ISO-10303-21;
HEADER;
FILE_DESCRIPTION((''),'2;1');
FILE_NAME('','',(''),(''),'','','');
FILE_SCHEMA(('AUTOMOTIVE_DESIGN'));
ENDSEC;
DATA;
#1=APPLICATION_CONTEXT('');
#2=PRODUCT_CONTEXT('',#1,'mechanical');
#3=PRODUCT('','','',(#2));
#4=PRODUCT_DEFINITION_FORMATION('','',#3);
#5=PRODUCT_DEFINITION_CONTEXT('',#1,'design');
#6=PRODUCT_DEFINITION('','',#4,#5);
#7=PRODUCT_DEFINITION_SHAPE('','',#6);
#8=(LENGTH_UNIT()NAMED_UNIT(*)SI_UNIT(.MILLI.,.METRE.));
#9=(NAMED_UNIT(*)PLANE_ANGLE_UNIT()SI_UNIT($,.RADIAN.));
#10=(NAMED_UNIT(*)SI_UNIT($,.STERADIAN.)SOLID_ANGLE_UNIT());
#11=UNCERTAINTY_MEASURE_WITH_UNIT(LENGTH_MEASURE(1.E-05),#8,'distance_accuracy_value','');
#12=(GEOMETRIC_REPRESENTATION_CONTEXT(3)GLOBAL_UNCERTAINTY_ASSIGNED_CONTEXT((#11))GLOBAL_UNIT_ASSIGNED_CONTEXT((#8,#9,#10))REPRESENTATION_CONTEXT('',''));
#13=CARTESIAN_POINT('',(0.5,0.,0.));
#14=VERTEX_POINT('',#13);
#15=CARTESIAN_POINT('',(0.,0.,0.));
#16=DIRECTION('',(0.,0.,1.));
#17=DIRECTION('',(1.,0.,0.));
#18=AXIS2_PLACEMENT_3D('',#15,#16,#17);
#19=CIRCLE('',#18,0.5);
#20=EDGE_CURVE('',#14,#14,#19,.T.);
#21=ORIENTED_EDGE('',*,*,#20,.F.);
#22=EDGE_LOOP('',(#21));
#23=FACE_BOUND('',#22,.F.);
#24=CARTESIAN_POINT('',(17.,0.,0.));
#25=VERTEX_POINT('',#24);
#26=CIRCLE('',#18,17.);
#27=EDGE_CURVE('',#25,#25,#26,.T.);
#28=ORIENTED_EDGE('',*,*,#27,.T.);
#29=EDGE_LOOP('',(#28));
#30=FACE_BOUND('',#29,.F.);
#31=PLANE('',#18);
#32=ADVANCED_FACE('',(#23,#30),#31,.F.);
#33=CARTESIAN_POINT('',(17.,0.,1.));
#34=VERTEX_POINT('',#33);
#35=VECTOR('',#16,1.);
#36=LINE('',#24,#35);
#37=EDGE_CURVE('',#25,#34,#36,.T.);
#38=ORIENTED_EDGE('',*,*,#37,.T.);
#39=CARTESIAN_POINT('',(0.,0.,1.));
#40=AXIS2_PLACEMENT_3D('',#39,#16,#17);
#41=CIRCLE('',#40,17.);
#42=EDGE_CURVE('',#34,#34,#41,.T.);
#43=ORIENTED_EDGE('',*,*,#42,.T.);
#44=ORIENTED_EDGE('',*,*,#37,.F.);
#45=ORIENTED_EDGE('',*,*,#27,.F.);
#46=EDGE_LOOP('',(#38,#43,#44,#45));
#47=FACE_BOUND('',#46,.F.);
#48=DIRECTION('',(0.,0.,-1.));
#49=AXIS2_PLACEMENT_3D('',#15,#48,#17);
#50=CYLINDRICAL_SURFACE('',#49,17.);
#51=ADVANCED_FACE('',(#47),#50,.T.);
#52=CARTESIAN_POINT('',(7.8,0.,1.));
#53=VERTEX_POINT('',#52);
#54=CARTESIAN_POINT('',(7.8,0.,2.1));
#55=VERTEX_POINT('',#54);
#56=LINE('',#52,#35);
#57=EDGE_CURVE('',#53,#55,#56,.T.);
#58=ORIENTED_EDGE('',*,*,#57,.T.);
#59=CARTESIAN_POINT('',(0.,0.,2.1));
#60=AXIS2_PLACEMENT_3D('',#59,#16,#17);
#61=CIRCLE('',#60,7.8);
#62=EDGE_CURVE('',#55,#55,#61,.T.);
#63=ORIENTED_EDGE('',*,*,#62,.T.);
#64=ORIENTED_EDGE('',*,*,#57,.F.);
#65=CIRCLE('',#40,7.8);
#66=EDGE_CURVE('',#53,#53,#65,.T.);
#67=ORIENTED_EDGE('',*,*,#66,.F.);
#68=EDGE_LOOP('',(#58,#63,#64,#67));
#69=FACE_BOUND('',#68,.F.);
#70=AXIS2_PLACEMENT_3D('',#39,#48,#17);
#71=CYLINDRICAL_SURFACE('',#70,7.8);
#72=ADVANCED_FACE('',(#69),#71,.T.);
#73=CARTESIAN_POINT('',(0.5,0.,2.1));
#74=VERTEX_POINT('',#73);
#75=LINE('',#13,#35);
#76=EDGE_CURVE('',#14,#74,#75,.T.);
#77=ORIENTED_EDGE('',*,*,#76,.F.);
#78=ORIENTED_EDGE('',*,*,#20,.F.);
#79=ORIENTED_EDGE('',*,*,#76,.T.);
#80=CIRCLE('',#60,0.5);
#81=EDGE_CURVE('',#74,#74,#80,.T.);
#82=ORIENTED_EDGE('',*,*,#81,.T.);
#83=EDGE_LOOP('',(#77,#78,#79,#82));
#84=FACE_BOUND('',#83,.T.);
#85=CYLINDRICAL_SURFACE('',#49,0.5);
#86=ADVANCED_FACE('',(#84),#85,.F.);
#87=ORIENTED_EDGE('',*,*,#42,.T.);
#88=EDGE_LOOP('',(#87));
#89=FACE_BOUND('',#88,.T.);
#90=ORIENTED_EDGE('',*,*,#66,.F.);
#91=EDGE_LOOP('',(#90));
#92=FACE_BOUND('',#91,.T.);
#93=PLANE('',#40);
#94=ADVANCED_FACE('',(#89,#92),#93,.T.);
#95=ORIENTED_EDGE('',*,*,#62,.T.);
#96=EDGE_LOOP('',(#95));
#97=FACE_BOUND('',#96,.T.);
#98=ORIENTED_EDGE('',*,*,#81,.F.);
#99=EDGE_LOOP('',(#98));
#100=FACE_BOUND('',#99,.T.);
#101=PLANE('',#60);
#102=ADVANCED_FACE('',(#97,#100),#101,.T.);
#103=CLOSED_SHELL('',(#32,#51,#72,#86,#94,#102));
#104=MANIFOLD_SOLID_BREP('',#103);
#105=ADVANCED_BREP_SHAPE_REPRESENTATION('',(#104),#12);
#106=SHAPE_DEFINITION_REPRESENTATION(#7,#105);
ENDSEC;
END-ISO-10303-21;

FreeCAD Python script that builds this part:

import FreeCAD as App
import Part
import Sketcher

V = App.Vector

doc = App.newDocument("Part")
body = doc.addObject("PartDesign::Body", "Body")

# Sketch on XY plane
sketch1 = doc.addObject("Sketcher::SketchObject", "Sketch")
body.addObject(sketch1)
sketch1.AttachmentSupport = (doc.XY_Plane, [""])
sketch1.MapMode = "FlatFace"
sketch1.addGeometry([
    Part.Circle(V(0, 0, 0), V(0, 0, 1), 17),
    Part.Circle(V(0, 0, 0), V(0, 0, 1), 0.5),
], False)
sketch1.addConstraint([
    Sketcher.Constraint("Coincident", 0, 3, -1, 1),
    Sketcher.Constraint("Coincident", 1, 3, -1, 1),
    Sketcher.Constraint("Diameter", 0, 34.0),
    Sketcher.Constraint("Diameter", 1, 1.0),
])
pad1 = doc.addObject("PartDesign::Pad", "Pad")
body.addObject(pad1)
pad1.Profile = sketch1
pad1.Length = 1

# Sketch on XY plane
sketch2 = doc.addObject("Sketcher::SketchObject", "Sketch001")
body.addObject(sketch2)
sketch2.AttachmentSupport = (doc.XY_Plane, [""])
sketch2.MapMode = "FlatFace"
sketch2.AttachmentOffset = App.Placement(V(0, 0, 1), App.Rotation())
sketch2.addGeometry([
    Part.Circle(V(0, 0, 0), V(0, 0, 1), 7.8),
    Part.Circle(V(0, 0, 0), V(0, 0, 1), 0.5),
], False)
sketch2.addConstraint([
    Sketcher.Constraint("Coincident", 0, 3, -1, 1),
    Sketcher.Constraint("Coincident", 1, 3, -1, 1),
    Sketcher.Constraint("Diameter", 0, 15.6),
    Sketcher.Constraint("Diameter", 1, 1.0),
])
pad2 = doc.addObject("PartDesign::Pad", "Pad001")
body.addObject(pad2)
pad2.Profile = sketch2
pad2.Length = 1.1

doc.recompute()
